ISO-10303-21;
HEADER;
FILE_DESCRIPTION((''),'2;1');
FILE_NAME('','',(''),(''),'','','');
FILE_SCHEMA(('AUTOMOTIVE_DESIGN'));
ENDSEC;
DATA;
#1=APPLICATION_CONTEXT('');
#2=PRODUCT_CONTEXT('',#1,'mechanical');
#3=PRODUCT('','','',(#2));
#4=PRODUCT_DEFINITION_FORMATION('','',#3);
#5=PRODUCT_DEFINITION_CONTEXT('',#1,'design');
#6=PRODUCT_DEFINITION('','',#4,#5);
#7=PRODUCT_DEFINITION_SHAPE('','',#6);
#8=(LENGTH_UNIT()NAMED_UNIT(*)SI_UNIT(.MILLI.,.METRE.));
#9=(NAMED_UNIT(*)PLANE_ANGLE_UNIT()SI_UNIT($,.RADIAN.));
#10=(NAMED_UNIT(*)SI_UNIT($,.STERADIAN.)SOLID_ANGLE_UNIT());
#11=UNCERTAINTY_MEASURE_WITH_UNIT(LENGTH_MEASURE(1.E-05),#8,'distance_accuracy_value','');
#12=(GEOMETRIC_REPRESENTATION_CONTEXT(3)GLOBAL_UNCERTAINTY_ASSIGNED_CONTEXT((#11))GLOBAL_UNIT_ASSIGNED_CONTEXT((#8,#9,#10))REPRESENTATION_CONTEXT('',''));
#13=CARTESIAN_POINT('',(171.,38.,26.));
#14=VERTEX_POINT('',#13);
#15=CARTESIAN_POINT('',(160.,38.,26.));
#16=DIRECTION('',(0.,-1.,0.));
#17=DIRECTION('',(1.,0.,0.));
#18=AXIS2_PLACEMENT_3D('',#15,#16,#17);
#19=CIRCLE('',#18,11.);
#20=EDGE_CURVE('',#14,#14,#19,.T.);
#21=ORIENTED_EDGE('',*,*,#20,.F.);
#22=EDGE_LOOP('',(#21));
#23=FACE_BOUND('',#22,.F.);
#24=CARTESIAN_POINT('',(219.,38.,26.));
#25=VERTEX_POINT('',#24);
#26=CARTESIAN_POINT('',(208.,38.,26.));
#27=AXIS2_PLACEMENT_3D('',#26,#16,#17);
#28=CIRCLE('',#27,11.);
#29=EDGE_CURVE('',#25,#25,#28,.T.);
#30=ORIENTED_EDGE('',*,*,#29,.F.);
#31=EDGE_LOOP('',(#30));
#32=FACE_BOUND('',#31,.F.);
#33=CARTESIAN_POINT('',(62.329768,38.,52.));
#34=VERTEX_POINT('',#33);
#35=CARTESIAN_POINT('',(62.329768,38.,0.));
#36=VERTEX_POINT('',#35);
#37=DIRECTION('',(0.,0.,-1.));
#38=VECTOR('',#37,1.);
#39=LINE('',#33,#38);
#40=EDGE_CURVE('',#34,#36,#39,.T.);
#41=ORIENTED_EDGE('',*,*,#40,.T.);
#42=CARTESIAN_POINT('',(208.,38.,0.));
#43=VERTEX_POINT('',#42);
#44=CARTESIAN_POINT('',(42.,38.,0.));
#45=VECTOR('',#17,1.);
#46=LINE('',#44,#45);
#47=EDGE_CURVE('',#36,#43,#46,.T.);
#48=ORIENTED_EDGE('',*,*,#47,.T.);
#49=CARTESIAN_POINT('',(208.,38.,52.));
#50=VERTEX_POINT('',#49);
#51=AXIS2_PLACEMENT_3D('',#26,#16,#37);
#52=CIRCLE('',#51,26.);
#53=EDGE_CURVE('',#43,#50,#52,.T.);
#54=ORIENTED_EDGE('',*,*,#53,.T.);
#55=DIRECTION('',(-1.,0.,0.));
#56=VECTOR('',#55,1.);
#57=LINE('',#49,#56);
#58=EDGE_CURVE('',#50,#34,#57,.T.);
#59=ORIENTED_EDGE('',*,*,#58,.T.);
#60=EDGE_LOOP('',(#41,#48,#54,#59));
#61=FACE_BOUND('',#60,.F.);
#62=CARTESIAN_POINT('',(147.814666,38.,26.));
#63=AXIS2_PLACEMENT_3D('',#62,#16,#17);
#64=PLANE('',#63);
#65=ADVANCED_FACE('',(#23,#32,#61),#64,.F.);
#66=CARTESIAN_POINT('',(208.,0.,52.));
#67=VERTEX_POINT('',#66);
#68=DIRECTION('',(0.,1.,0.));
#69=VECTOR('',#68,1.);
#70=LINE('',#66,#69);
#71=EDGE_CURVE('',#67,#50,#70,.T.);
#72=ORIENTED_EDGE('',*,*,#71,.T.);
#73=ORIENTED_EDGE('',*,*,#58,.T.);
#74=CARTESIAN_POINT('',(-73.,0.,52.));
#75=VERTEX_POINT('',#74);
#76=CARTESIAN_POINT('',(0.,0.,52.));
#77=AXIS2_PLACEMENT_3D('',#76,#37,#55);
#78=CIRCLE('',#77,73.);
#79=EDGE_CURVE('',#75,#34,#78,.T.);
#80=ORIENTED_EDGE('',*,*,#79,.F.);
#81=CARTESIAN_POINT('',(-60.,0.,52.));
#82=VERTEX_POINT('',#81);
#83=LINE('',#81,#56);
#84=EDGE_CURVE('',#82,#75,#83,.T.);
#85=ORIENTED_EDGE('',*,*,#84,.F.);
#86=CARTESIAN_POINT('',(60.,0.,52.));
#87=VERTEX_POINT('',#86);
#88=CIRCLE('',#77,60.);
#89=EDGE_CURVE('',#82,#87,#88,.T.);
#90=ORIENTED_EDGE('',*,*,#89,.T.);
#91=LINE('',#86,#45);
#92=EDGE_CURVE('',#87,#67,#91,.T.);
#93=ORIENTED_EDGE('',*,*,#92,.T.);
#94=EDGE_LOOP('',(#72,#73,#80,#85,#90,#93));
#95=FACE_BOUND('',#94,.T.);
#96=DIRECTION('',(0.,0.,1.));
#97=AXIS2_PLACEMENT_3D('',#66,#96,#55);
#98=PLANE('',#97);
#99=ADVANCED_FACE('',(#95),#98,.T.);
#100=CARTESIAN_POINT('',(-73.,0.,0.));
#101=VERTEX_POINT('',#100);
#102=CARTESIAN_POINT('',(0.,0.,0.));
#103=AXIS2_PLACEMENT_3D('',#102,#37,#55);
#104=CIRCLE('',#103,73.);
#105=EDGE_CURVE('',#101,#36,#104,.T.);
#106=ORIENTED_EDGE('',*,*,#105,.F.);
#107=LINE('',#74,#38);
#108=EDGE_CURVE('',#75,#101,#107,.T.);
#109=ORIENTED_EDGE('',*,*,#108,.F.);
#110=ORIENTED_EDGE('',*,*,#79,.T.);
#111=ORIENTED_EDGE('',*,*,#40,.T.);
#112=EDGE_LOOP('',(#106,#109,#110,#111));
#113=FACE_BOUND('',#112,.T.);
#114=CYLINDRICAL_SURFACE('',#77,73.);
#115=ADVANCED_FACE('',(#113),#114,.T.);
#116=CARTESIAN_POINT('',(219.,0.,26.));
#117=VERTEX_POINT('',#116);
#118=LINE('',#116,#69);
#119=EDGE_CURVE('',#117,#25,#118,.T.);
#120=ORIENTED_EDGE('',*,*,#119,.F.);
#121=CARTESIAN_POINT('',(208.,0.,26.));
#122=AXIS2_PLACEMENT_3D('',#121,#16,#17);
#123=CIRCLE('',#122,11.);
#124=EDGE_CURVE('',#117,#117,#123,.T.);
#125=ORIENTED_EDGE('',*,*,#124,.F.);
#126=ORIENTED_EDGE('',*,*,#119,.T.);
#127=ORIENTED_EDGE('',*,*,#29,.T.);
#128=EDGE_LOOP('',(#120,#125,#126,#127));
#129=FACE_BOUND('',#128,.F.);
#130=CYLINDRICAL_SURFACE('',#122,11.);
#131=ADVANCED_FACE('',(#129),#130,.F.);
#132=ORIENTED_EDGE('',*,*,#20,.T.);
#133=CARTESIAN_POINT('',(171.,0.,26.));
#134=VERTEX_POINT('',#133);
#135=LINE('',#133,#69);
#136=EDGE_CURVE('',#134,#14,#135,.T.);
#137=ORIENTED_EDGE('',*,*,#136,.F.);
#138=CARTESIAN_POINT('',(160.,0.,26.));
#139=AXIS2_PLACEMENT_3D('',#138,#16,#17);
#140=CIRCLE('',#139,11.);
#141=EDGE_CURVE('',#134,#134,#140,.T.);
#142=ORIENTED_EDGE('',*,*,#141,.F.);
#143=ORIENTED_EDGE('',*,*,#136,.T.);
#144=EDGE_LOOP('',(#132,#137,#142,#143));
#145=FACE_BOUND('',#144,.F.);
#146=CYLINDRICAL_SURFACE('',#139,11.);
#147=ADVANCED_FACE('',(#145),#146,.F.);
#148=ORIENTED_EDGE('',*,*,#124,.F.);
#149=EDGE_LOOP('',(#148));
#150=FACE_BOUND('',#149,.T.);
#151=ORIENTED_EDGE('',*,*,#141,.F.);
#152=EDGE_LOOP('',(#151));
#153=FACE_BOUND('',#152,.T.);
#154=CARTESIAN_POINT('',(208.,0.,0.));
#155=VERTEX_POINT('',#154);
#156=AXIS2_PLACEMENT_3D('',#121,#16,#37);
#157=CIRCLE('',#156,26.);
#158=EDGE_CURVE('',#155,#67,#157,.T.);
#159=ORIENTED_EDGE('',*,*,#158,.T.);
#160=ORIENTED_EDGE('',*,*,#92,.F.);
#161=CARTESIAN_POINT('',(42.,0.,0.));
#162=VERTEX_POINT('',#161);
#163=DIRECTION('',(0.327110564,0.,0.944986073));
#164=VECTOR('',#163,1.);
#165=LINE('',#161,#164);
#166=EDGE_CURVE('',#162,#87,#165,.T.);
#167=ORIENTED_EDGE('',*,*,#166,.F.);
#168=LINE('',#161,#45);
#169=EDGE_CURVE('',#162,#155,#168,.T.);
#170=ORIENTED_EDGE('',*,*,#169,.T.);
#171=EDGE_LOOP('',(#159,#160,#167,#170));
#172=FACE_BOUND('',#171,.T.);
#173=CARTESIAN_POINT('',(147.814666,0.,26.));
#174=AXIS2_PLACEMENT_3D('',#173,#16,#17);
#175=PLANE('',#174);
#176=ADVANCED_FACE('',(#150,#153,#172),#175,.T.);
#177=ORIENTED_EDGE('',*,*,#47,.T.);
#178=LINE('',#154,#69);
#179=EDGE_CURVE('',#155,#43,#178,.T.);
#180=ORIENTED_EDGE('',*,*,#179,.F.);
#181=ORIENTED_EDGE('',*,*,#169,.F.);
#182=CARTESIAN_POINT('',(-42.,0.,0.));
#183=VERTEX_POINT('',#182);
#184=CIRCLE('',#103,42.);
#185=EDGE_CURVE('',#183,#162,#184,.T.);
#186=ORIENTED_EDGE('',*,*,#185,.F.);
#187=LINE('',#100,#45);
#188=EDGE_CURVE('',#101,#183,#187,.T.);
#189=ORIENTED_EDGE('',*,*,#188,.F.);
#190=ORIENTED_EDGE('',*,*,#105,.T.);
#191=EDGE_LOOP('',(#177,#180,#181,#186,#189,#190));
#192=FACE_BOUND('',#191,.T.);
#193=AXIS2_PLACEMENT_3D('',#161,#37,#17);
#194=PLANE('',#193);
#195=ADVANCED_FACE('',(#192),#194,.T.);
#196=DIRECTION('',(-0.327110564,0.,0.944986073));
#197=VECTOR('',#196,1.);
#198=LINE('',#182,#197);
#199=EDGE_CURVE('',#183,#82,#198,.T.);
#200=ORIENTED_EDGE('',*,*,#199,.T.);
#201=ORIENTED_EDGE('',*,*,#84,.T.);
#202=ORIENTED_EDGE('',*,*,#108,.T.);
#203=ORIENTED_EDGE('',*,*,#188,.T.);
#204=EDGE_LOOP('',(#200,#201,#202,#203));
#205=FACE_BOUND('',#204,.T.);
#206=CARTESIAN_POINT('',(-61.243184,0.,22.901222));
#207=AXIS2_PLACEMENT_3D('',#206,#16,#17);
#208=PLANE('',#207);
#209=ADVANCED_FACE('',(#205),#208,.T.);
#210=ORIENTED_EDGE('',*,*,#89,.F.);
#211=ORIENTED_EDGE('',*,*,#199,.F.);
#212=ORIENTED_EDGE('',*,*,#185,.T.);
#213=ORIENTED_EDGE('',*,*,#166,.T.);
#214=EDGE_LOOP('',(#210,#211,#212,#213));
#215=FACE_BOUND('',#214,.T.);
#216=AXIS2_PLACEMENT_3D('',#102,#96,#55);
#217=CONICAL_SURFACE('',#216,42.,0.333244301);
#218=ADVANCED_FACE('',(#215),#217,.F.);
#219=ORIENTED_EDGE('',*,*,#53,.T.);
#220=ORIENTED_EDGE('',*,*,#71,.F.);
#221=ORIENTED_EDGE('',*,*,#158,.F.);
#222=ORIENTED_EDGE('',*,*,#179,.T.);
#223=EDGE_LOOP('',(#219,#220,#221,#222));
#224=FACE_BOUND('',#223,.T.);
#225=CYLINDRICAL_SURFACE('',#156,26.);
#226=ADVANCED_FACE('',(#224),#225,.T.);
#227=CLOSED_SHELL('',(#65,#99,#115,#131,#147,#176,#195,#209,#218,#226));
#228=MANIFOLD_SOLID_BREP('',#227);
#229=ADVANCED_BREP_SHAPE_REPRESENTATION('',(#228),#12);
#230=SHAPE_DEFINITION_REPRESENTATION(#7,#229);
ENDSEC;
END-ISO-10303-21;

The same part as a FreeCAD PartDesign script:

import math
import FreeCAD as App
import Part
import Sketcher


def add_polygon(sketch, points):
    """Adds a closed chain of lines whose ends are joined by coincident constraints."""
    first, n = sketch.GeometryCount, len(points)
    for a, b in zip(points, points[1:] + points[:1]):
        sketch.addGeometry(Part.LineSegment(App.Vector(*a, 0), App.Vector(*b, 0)), False)
    for i in range(n):
        sketch.addConstraint(Sketcher.Constraint("Coincident", first + i, 2, first + (i + 1) % n, 1))

doc = App.newDocument("Part")
body = doc.addObject("PartDesign::Body", "Body")

# Sketch on XZ plane
sketch1 = body.newObject("Sketcher::SketchObject", "Sketch")
sketch1.AttachmentSupport = (doc.getObject("XZ_Plane"), [""])
sketch1.MapMode = "FlatFace"
add_polygon(sketch1, [(-73, 52), (-73, 0), (-42, 0), (-60, 52)])  # lines 0-3
sketch1.addConstraint(Sketcher.Constraint("Vertical", 0))
sketch1.addConstraint(Sketcher.Constraint("Horizontal", 1))
sketch1.addConstraint(Sketcher.Constraint("Horizontal", 3))
sketch1.addConstraint(Sketcher.Constraint("PointOnObject", 0, 2, -1))
sketch1.addConstraint(Sketcher.Constraint("DistanceX", 1, 1, 1, 2, 31.0))
sketch1.addConstraint(Sketcher.Constraint("DistanceX", 3, 2, 3, 1, 13.0))
sketch1.addConstraint(Sketcher.Constraint("DistanceY", 0, 2, 0, 1, 52.0))
sketch1.addConstraint(Sketcher.Constraint("DistanceX", 0, 2, -1, 1, 73.0))
revolution = body.newObject("PartDesign::Revolution", "Revolution")
revolution.Profile = sketch1
revolution.ReferenceAxis = (sketch1, ["V_Axis"])
revolution.Angle = 180
revolution.Reversed = True

# Sketch on XZ plane
sketch2 = body.newObject("Sketcher::SketchObject", "Sketch001")
sketch2.AttachmentSupport = (doc.getObject("XZ_Plane"), [""])
sketch2.MapMode = "FlatFace"
sketch2.addGeometry(Part.LineSegment(App.Vector(208, 52, 0), App.Vector(60, 52, 0)), False)
sketch2.addGeometry(Part.LineSegment(App.Vector(60, 52, 0), App.Vector(42, 0, 0)), False)
sketch2.addGeometry(Part.LineSegment(App.Vector(42, 0, 0), App.Vector(208, 0, 0)), False)
sketch2.addGeometry(Part.ArcOfCircle(Part.Circle(App.Vector(208, 26, 0), App.Vector(0, 0, 1), 26), math.radians(-90), math.radians(90)), False)
sketch2.addGeometry(Part.Circle(App.Vector(160, 26, 0), App.Vector(0, 0, 1), 11), False)
sketch2.addGeometry(Part.Circle(App.Vector(208, 26, 0), App.Vector(0, 0, 1), 11), False)
sketch2.addConstraint(Sketcher.Constraint("Coincident", 0, 2, 1, 1))
sketch2.addConstraint(Sketcher.Constraint("Coincident", 1, 2, 2, 1))
sketch2.addConstraint(Sketcher.Constraint("Tangent", 2, 2, 3, 1))
sketch2.addConstraint(Sketcher.Constraint("Tangent", 3, 2, 0, 1))
sketch2.addConstraint(Sketcher.Constraint("Horizontal", 0))
sketch2.addConstraint(Sketcher.Constraint("Horizontal", 2))
sketch2.addConstraint(Sketcher.Constraint("Coincident", 5, 3, 3, 3))
sketch2.addConstraint(Sketcher.Constraint("Equal", 4, 5))
sketch2.addConstraint(Sketcher.Constraint("PointOnObject", 1, 2, -1))
sketch2.addConstraint(Sketcher.Constraint("Horizontal", 3, 3, 4, 3))
sketch2.addConstraint(Sketcher.Constraint("Diameter", 4, 22.0))
sketch2.addConstraint(Sketcher.Constraint("Radius", 3, 26.0))
sketch2.addConstraint(Sketcher.Constraint("DistanceX", 0, 2, 0, 1, 148.0))
sketch2.addConstraint(Sketcher.Constraint("DistanceX", 2, 1, 2, 2, 166.0))
sketch2.addConstraint(Sketcher.Constraint("DistanceX", -1, 1, 3, 3, 208.0))
sketch2.addConstraint(Sketcher.Constraint("DistanceX", -1, 1, 4, 3, 160.0))
pad1 = body.newObject("PartDesign::Pad", "Pad")
pad1.Profile = sketch2
pad1.Length = 38
pad1.Reversed = True

doc.recompute()
